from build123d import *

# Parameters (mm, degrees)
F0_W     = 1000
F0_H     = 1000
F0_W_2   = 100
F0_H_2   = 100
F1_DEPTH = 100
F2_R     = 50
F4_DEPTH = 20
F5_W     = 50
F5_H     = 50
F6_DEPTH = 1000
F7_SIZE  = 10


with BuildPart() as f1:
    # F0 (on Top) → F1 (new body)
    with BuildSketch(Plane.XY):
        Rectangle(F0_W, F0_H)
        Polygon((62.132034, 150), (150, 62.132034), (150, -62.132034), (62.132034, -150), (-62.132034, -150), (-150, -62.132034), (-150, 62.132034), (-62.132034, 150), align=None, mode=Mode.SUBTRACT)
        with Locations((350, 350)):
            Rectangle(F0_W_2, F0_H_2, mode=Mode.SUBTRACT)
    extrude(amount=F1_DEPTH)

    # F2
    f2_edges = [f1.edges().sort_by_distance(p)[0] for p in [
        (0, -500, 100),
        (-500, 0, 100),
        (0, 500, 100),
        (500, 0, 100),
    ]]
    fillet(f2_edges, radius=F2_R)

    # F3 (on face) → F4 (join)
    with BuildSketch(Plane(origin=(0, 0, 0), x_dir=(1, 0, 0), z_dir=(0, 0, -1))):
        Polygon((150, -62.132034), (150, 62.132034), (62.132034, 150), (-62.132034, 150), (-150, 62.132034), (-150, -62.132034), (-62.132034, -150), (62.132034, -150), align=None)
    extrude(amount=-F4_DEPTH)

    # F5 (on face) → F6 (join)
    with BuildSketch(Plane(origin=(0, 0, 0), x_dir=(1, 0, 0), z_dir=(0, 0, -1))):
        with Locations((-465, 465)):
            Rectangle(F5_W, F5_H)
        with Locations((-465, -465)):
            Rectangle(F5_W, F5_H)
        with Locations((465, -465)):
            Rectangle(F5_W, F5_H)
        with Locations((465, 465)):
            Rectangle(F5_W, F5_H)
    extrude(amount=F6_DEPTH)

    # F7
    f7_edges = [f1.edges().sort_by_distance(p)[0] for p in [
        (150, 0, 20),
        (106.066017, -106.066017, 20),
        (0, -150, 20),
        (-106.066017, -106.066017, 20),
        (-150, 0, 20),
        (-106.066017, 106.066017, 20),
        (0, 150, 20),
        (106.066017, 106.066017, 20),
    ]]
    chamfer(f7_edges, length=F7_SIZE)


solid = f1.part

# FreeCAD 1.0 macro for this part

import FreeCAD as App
import Part
import Sketcher

V = App.Vector


def edges_at(feature, points):
    """Names of the edges that pass closest to the given points."""
    edges = feature.Shape.Edges
    near = lambda p: min(range(len(edges)), key=lambda i: edges[i].distToShape(Part.Vertex(*p))[0])
    return sorted({f"Edge{near(p) + 1}" for p in points})

doc = App.newDocument("Part")
body = doc.addObject("PartDesign::Body", "Body")

# Sketch on XY plane
sketch1 = body.newObject("Sketcher::SketchObject", "Sketch")
sketch1.AttachmentSupport = (doc.getObject("XY_Plane"), [""])
sketch1.MapMode = "FlatFace"
sketch1.addGeometry(Part.LineSegment(V(-500, 500, 0), V(-500, -500, 0)), False)
sketch1.addGeometry(Part.LineSegment(V(-500, -500, 0), V(500, -500, 0)), False)
sketch1.addGeometry(Part.LineSegment(V(500, -500, 0), V(500, 500, 0)), False)
sketch1.addGeometry(Part.LineSegment(V(500, 500, 0), V(-500, 500, 0)), False)
sketch1.addGeometry(Part.LineSegment(V(-62.132034, 150, 0), V(62.132034, 150, 0)), False)
sketch1.addGeometry(Part.LineSegment(V(62.132034, 150, 0), V(150, 62.132034, 0)), False)
sketch1.addGeometry(Part.LineSegment(V(150, 62.132034, 0), V(150, -62.132034, 0)), False)
sketch1.addGeometry(Part.LineSegment(V(150, -62.132034, 0), V(62.132034, -150, 0)), False)
sketch1.addGeometry(Part.LineSegment(V(62.132034, -150, 0), V(-62.132034, -150, 0)), False)
sketch1.addGeometry(Part.LineSegment(V(-62.132034, -150, 0), V(-150, -62.132034, 0)), False)
sketch1.addGeometry(Part.LineSegment(V(-150, -62.132034, 0), V(-150, 62.132034, 0)), False)
sketch1.addGeometry(Part.LineSegment(V(-150, 62.132034, 0), V(-62.132034, 150, 0)), False)
sketch1.addGeometry(Part.LineSegment(V(400, 300, 0), V(300, 300, 0)), False)
sketch1.addGeometry(Part.LineSegment(V(300, 300, 0), V(300, 400, 0)), False)
sketch1.addGeometry(Part.LineSegment(V(300, 400, 0), V(400, 400, 0)), False)
sketch1.addGeometry(Part.LineSegment(V(400, 400, 0), V(400, 300, 0)), False)
sketch1.addConstraint(Sketcher.Constraint("Coincident", 0, 2, 1, 1))
sketch1.addConstraint(Sketcher.Constraint("Coincident", 1, 2, 2, 1))
sketch1.addConstraint(Sketcher.Constraint("Coincident", 2, 2, 3, 1))
sketch1.addConstraint(Sketcher.Constraint("Coincident", 3, 2, 0, 1))
sketch1.addConstraint(Sketcher.Constraint("Coincident", 4, 2, 5, 1))
sketch1.addConstraint(Sketcher.Constraint("Coincident", 5, 2, 6, 1))
sketch1.addConstraint(Sketcher.Constraint("Coincident", 6, 2, 7, 1))
sketch1.addConstraint(Sketcher.Constraint("Coincident", 7, 2, 8, 1))
sketch1.addConstraint(Sketcher.Constraint("Coincident", 8, 2, 9, 1))
sketch1.addConstraint(Sketcher.Constraint("Coincident", 9, 2, 10, 1))
sketch1.addConstraint(Sketcher.Constraint("Coincident", 10, 2, 11, 1))
sketch1.addConstraint(Sketcher.Constraint("Coincident", 11, 2, 4, 1))
sketch1.addConstraint(Sketcher.Constraint("Coincident", 12, 2, 13, 1))
sketch1.addConstraint(Sketcher.Constraint("Coincident", 13, 2, 14, 1))
sketch1.addConstraint(Sketcher.Constraint("Coincident", 14, 2, 15, 1))
sketch1.addConstraint(Sketcher.Constraint("Coincident", 15, 2, 12, 1))
sketch1.addConstraint(Sketcher.Constraint("Vertical", 0))
sketch1.addConstraint(Sketcher.Constraint("Horizontal", 1))
sketch1.addConstraint(Sketcher.Constraint("Vertical", 2))
sketch1.addConstraint(Sketcher.Constraint("Horizontal", 3))
sketch1.addConstraint(Sketcher.Constraint("Horizontal", 4))
sketch1.addConstraint(Sketcher.Constraint("Vertical", 6))
sketch1.addConstraint(Sketcher.Constraint("Horizontal", 8))
sketch1.addConstraint(Sketcher.Constraint("Vertical", 10))
sketch1.addConstraint(Sketcher.Constraint("Horizontal", 12))
sketch1.addConstraint(Sketcher.Constraint("Vertical", 13))
sketch1.addConstraint(Sketcher.Constraint("Horizontal", 14))
sketch1.addConstraint(Sketcher.Constraint("Vertical", 15))
sketch1.addConstraint(Sketcher.Constraint("Symmetric", 0, 2, 2, 2, -1, 1))
sketch1.addConstraint(Sketcher.Constraint("Symmetric", 4, 2, 8, 2, -1, 1))
sketch1.addConstraint(Sketcher.Constraint("Symmetric", 5, 2, 9, 2, -1, 1))
sketch1.addConstraint(Sketcher.Constraint("Perpendicular", 5, 7))
sketch1.addConstraint(Sketcher.Constraint("Perpendicular", 9, 11))
sketch1.addConstraint(Sketcher.Constraint("Horizontal", 6, 2, 9, 2))
sketch1.addConstraint(Sketcher.Constraint("Horizontal", 5, 2, 10, 2))
sketch1.addConstraint(Sketcher.Constraint("Vertical", 4, 2, 7, 2))
sketch1.addConstraint(Sketcher.Constraint("Equal", 3, 0))
sketch1.addConstraint(Sketcher.Constraint("Equal", 8, 6))
sketch1.addConstraint(Sketcher.Constraint("Equal", 14, 13))
sketch1.addConstraint(Sketcher.Constraint("DistanceX", 1, 1, 1, 2, 1000.0))
sketch1.addConstraint(Sketcher.Constraint("DistanceX", 12, 2, 12, 1, 100.0))
sketch1.addConstraint(Sketcher.Constraint("DistanceY", -1, 1, 4, 2, 150.0))
sketch1.addConstraint(Sketcher.Constraint("DistanceX", -1, 1, 12, 2, 300.0))
sketch1.addConstraint(Sketcher.Constraint("DistanceY", -1, 1, 12, 2, 300.0))
sketch1.addConstraint(Sketcher.Constraint("Distance", 5, 124.264069))
pad1 = body.newObject("PartDesign::Pad", "Pad")
pad1.Profile = sketch1
pad1.Length = 100
doc.recompute()

fillet = body.newObject("PartDesign::Fillet", "Fillet")
fillet.Base = (pad1, edges_at(pad1, [
    (0, -500, 100),
    (-500, 0, 100),
    (0, 500, 100),
    (500, 0, 100),
]))
fillet.Radius = 50

# Sketch on XY plane
sketch2 = body.newObject("Sketcher::SketchObject", "Sketch001")
sketch2.AttachmentSupport = (doc.getObject("XY_Plane"), [""])
sketch2.MapMode = "FlatFace"
sketch2.addGeometry(Part.LineSegment(V(150, 62.132034, 0), V(150, -62.132034, 0)), False)
sketch2.addGeometry(Part.LineSegment(V(150, -62.132034, 0), V(62.132034, -150, 0)), False)
sketch2.addGeometry(Part.LineSegment(V(62.132034, -150, 0), V(-62.132034, -150, 0)), False)
sketch2.addGeometry(Part.LineSegment(V(-62.132034, -150, 0), V(-150, -62.132034, 0)), False)
sketch2.addGeometry(Part.LineSegment(V(-150, -62.132034, 0), V(-150, 62.132034, 0)), False)
sketch2.addGeometry(Part.LineSegment(V(-150, 62.132034, 0), V(-62.132034, 150, 0)), False)
sketch2.addGeometry(Part.LineSegment(V(-62.132034, 150, 0), V(62.132034, 150, 0)), False)
sketch2.addGeometry(Part.LineSegment(V(62.132034, 150, 0), V(150, 62.132034, 0)), False)
sketch2.addConstraint(Sketcher.Constraint("Coincident", 0, 2, 1, 1))
sketch2.addConstraint(Sketcher.Constraint("Coincident", 1, 2, 2, 1))
sketch2.addConstraint(Sketcher.Constraint("Coincident", 2, 2, 3, 1))
sketch2.addConstraint(Sketcher.Constraint("Coincident", 3, 2, 4, 1))
sketch2.addConstraint(Sketcher.Constraint("Coincident", 4, 2, 5, 1))
sketch2.addConstraint(Sketcher.Constraint("Coincident", 5, 2, 6, 1))
sketch2.addConstraint(Sketcher.Constraint("Coincident", 6, 2, 7, 1))
sketch2.addConstraint(Sketcher.Constraint("Coincident", 7, 2, 0, 1))
sketch2.addConstraint(Sketcher.Constraint("Vertical", 0))
sketch2.addConstraint(Sketcher.Constraint("Horizontal", 2))
sketch2.addConstraint(Sketcher.Constraint("Vertical", 4))
sketch2.addConstraint(Sketcher.Constraint("Horizontal", 6))
sketch2.addConstraint(Sketcher.Constraint("Symmetric", 0, 2, 4, 2, -1, 1))
sketch2.addConstraint(Sketcher.Constraint("Symmetric", 1, 2, 5, 2, -1, 1))
sketch2.addConstraint(Sketcher.Constraint("Perpendicular", 1, 3))
sketch2.addConstraint(Sketcher.Constraint("Perpendicular", 5, 7))
sketch2.addConstraint(Sketcher.Constraint("Horizontal", 0, 2, 3, 2))
sketch2.addConstraint(Sketcher.Constraint("Horizontal", 4, 2, 7, 2))
sketch2.addConstraint(Sketcher.Constraint("Vertical", 2, 2, 5, 2))
sketch2.addConstraint(Sketcher.Constraint("Equal", 6, 0))
sketch2.addConstraint(Sketcher.Constraint("DistanceX", -1, 1, 0, 2, 150.0))
sketch2.addConstraint(Sketcher.Constraint("Distance", 1, 124.264069))
pad2 = body.newObject("PartDesign::Pad", "Pad001")
pad2.Profile = sketch2
pad2.Length = 20

# Sketch on XY plane
sketch3 = body.newObject("Sketcher::SketchObject", "Sketch002")
sketch3.AttachmentSupport = (doc.getObject("XY_Plane"), [""])
sketch3.MapMode = "FlatFace"
sketch3.addGeometry(Part.LineSegment(V(-490, -490, 0), V(-490, -440, 0)), False)
sketch3.addGeometry(Part.LineSegment(V(-490, -440, 0), V(-440, -440, 0)), False)
sketch3.addGeometry(Part.LineSegment(V(-440, -440, 0), V(-440, -490, 0)), False)
sketch3.addGeometry(Part.LineSegment(V(-440, -490, 0), V(-490, -490, 0)), False)
sketch3.addGeometry(Part.LineSegment(V(-490, 440, 0), V(-490, 490, 0)), False)
sketch3.addGeometry(Part.LineSegment(V(-490, 490, 0), V(-440, 490, 0)), False)
sketch3.addGeometry(Part.LineSegment(V(-440, 490, 0), V(-440, 440, 0)), False)
sketch3.addGeometry(Part.LineSegment(V(-440, 440, 0), V(-490, 440, 0)), False)
sketch3.addGeometry(Part.LineSegment(V(440, 440, 0), V(440, 490, 0)), False)
sketch3.addGeometry(Part.LineSegment(V(440, 490, 0), V(490, 490, 0)), False)
sketch3.addGeometry(Part.LineSegment(V(490, 490, 0), V(490, 440, 0)), False)
sketch3.addGeometry(Part.LineSegment(V(490, 440, 0), V(440, 440, 0)), False)
sketch3.addGeometry(Part.LineSegment(V(440, -490, 0), V(440, -440, 0)), False)
sketch3.addGeometry(Part.LineSegment(V(440, -440, 0), V(490, -440, 0)), False)
sketch3.addGeometry(Part.LineSegment(V(490, -440, 0), V(490, -490, 0)), False)
sketch3.addGeometry(Part.LineSegment(V(490, -490, 0), V(440, -490, 0)), False)
sketch3.addConstraint(Sketcher.Constraint("Coincident", 0, 2, 1, 1))
sketch3.addConstraint(Sketcher.Constraint("Coincident", 1, 2, 2, 1))
sketch3.addConstraint(Sketcher.Constraint("Coincident", 2, 2, 3, 1))
sketch3.addConstraint(Sketcher.Constraint("Coincident", 3, 2, 0, 1))
sketch3.addConstraint(Sketcher.Constraint("Coincident", 4, 2, 5, 1))
sketch3.addConstraint(Sketcher.Constraint("Coincident", 5, 2, 6, 1))
sketch3.addConstraint(Sketcher.Constraint("Coincident", 6, 2, 7, 1))
sketch3.addConstraint(Sketcher.Constraint("Coincident", 7, 2, 4, 1))
sketch3.addConstraint(Sketcher.Constraint("Coincident", 8, 2, 9, 1))
sketch3.addConstraint(Sketcher.Constraint("Coincident", 9, 2, 10, 1))
sketch3.addConstraint(Sketcher.Constraint("Coincident", 10, 2, 11, 1))
sketch3.addConstraint(Sketcher.Constraint("Coincident", 11, 2, 8, 1))
sketch3.addConstraint(Sketcher.Constraint("Coincident", 12, 2, 13, 1))
sketch3.addConstraint(Sketcher.Constraint("Coincident", 13, 2, 14, 1))
sketch3.addConstraint(Sketcher.Constraint("Coincident", 14, 2, 15, 1))
sketch3.addConstraint(Sketcher.Constraint("Coincident", 15, 2, 12, 1))
sketch3.addConstraint(Sketcher.Constraint("Vertical", 0))
sketch3.addConstraint(Sketcher.Constraint("Horizontal", 1))
sketch3.addConstraint(Sketcher.Constraint("Vertical", 2))
sketch3.addConstraint(Sketcher.Constraint("Horizontal", 3))
sketch3.addConstraint(Sketcher.Constraint("Vertical", 4))
sketch3.addConstraint(Sketcher.Constraint("Horizontal", 5))
sketch3.addConstraint(Sketcher.Constraint("Vertical", 6))
sketch3.addConstraint(Sketcher.Constraint("Horizontal", 7))
sketch3.addConstraint(Sketcher.Constraint("Vertical", 8))
sketch3.addConstraint(Sketcher.Constraint("Horizontal", 9))
sketch3.addConstraint(Sketcher.Constraint("Vertical", 10))
sketch3.addConstraint(Sketcher.Constraint("Horizontal", 11))
sketch3.addConstraint(Sketcher.Constraint("Vertical", 12))
sketch3.addConstraint(Sketcher.Constraint("Horizontal", 13))
sketch3.addConstraint(Sketcher.Constraint("Vertical", 14))
sketch3.addConstraint(Sketcher.Constraint("Horizontal", 15))
sketch3.addConstraint(Sketcher.Constraint("Symmetric", 2, 2, 8, 2, -1, 1))
sketch3.addConstraint(Sketcher.Constraint("Symmetric", 0, 2, 10, 2, -1, 1))
sketch3.addConstraint(Sketcher.Constraint("Symmetric", 6, 2, 12, 2, -1, 1))
sketch3.addConstraint(Sketcher.Constraint("Symmetric", 4, 2, 14, 2, -1, 1))
sketch3.addConstraint(Sketcher.Constraint("Symmetric", 5, 2, 8, 2, -2))
sketch3.addConstraint(Sketcher.Constraint("Symmetric", 7, 2, 10, 2, -2))
sketch3.addConstraint(Sketcher.Constraint("Equal", 15, 0))
sketch3.addConstraint(Sketcher.Constraint("DistanceX", 1, 1, 1, 2, 50.0))
sketch3.addConstraint(Sketcher.Constraint("DistanceX", 0, 2, -1, 1, 490.0))
sketch3.addConstraint(Sketcher.Constraint("DistanceY", 0, 2, -1, 1, 440.0))
pad3 = body.newObject("PartDesign::Pad", "Pad002")
pad3.Profile = sketch3
pad3.Length = 1000
pad3.Reversed = True
doc.recompute()

chamfer = body.newObject("PartDesign::Chamfer", "Chamfer")
chamfer.Base = (pad3, edges_at(pad3, [
    (150, 0, 20),
    (106.066, -106.066, 20),
    (0, -150, 20),
    (-106.066, -106.066, 20),
    (-150, 0, 20),
    (-106.066, 106.066, 20),
    (0, 150, 20),
    (106.066, 106.066, 20),
]))
chamfer.Size = 10

doc.recompute()
